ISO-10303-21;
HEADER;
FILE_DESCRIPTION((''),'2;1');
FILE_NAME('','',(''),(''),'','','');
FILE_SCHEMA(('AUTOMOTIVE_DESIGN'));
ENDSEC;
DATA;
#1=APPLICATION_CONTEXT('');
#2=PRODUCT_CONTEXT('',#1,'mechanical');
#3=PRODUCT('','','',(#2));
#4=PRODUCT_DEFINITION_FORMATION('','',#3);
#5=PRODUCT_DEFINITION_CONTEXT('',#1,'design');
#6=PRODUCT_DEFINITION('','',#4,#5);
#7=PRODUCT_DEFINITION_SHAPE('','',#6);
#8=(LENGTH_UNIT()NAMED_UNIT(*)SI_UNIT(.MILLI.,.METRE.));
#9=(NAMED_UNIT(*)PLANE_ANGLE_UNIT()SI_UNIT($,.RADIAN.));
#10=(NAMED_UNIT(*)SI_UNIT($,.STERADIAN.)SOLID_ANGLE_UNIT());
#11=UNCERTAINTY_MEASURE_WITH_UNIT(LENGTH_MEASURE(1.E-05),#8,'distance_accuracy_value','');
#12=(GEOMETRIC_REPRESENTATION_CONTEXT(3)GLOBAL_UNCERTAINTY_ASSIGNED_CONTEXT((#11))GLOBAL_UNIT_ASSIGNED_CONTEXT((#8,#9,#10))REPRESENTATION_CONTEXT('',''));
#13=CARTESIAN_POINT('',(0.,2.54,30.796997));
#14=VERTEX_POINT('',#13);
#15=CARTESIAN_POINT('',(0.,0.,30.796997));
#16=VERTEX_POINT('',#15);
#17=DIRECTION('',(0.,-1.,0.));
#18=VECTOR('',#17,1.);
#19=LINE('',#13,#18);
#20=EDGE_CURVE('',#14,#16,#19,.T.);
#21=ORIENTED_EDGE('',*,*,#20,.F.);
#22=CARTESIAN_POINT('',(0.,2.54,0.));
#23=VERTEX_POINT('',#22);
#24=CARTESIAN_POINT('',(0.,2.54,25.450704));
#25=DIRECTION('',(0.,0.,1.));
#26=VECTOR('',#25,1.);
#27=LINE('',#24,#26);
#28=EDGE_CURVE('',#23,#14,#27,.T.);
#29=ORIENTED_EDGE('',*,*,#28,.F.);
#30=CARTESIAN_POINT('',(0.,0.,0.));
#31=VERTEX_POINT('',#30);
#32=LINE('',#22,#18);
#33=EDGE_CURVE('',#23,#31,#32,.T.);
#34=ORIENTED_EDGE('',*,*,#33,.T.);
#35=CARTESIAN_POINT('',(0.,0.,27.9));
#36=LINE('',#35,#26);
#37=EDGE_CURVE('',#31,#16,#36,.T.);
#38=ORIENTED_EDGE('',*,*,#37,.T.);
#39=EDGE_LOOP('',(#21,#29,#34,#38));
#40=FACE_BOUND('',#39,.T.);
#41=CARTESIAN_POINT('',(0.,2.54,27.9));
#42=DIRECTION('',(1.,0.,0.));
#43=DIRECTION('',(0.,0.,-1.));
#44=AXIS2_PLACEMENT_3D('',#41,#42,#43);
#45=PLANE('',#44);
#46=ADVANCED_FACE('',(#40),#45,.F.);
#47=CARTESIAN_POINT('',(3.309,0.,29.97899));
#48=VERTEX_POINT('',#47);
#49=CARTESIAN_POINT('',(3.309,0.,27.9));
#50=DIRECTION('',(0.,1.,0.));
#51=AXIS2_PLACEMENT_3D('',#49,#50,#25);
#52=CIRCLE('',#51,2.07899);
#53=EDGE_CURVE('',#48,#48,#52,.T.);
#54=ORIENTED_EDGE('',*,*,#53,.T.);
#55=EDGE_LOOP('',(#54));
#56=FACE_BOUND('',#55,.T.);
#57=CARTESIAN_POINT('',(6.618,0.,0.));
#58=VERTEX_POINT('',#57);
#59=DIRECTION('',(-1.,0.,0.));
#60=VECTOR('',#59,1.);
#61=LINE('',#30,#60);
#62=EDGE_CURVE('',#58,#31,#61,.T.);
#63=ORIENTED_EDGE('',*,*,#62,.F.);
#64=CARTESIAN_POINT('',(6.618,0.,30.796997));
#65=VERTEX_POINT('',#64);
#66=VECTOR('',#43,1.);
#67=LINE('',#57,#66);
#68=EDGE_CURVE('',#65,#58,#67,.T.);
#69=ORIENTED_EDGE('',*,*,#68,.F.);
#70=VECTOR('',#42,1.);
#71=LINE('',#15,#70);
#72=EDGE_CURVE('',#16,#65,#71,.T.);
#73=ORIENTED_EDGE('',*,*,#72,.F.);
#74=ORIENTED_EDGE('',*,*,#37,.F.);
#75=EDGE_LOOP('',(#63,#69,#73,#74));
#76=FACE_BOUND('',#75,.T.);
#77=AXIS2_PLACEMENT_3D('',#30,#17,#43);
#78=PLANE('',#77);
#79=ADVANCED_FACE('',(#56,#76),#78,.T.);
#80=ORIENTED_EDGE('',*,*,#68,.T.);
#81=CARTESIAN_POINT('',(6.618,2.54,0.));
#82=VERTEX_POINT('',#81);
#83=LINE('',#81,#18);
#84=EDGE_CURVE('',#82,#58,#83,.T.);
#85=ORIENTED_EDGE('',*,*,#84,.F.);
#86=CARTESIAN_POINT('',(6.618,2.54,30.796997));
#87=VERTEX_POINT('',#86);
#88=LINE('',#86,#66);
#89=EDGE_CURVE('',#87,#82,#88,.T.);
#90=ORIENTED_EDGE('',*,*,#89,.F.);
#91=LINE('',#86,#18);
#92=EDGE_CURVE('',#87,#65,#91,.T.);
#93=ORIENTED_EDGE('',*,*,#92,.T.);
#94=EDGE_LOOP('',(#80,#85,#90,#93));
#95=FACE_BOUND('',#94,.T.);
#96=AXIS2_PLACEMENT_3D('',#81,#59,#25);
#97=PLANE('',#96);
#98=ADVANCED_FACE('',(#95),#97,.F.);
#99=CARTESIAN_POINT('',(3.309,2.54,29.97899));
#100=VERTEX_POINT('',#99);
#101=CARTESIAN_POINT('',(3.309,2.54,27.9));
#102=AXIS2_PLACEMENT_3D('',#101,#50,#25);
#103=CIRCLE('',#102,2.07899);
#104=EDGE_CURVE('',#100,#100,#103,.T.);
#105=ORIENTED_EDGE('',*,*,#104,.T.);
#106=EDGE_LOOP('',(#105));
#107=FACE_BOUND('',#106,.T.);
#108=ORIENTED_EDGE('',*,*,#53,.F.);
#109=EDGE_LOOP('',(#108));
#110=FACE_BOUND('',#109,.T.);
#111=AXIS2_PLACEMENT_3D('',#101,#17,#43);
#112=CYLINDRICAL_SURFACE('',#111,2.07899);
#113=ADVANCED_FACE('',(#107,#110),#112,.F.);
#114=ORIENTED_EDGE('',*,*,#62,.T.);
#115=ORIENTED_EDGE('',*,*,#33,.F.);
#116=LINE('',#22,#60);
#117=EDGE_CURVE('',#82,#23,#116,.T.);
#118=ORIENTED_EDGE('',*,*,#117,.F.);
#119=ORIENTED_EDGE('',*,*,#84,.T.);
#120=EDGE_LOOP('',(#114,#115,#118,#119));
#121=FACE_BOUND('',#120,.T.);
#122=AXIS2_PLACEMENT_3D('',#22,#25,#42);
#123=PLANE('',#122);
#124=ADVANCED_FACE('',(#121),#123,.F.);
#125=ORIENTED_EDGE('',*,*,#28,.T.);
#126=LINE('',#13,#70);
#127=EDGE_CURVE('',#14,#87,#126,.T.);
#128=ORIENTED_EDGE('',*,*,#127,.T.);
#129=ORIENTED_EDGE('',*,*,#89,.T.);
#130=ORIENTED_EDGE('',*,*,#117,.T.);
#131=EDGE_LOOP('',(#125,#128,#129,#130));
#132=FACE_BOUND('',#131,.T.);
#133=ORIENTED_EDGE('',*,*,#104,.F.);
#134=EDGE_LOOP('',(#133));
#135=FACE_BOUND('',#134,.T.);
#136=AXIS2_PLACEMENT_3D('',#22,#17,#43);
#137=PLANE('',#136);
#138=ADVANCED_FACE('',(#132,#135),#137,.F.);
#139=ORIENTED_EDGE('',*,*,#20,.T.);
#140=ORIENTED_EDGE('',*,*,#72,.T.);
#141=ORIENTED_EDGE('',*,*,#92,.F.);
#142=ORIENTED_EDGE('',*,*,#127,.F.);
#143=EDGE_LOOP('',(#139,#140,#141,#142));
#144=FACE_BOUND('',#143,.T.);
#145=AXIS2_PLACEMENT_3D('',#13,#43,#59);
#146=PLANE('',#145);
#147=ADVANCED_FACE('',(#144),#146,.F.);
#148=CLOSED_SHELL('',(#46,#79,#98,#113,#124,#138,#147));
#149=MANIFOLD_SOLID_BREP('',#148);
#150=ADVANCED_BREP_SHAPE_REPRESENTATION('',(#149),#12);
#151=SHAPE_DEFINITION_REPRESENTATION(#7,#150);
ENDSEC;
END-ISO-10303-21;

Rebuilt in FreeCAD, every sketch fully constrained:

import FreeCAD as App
import Part
import Sketcher
from FreeCAD import Vector
Q = App.Units.Quantity

doc = App.newDocument("Part")
body = doc.addObject("PartDesign::Body", "Body")

# Sketch on XZ plane
sketch1 = body.newObject("Sketcher::SketchObject", "Sketch")
sketch1.AttachmentSupport = (doc.getObject("XZ_Plane"), [""])
sketch1.MapMode = "FlatFace"
sketch1.addGeometry([
    Part.LineSegment(Vector(6.6, 0, 0), Vector(0, 0, 0)),  # 0
    Part.LineSegment(Vector(0, 0, 0), Vector(0, 30.8, 0)),  # 1
    Part.LineSegment(Vector(0, 30.8, 0), Vector(6.6, 30.8, 0)),  # 2
    Part.LineSegment(Vector(6.6, 30.8, 0), Vector(6.6, 0, 0)),  # 3
    Part.Circle(Vector(3.3, 27.9, 0), Vector(0, 0, 1), 2.1),  # 4
], False)
sketch1.addConstraint([
    Sketcher.Constraint("Coincident", 0, 2, 1, 1),
    Sketcher.Constraint("Coincident", 1, 2, 2, 1),
    Sketcher.Constraint("Coincident", 2, 2, 3, 1),
    Sketcher.Constraint("Coincident", 3, 2, 0, 1),
    Sketcher.Constraint("Horizontal", 0),
    Sketcher.Constraint("Vertical", 1),
    Sketcher.Constraint("Horizontal", 2),
    Sketcher.Constraint("Vertical", 3),
    Sketcher.Constraint("Coincident", 0, 2, -1, 1),
    Sketcher.Constraint("Diameter", 4, Q("0.1637 in")),
    Sketcher.Constraint("DistanceX", 0, 2, 0, 1, 6.618),
    Sketcher.Constraint("DistanceX", -1, 1, 4, 3, 3.309),
    Sketcher.Constraint("DistanceY", -1, 1, 4, 3, 27.9),
    Sketcher.Constraint("DistanceY", 1, 1, 1, 2, 30.796997),
])
pad1 = body.newObject("PartDesign::Pad", "Pad")
pad1.Profile = sketch1
pad1.Length = Q("0.1 in")
pad1.Reversed = True

doc.recompute()
